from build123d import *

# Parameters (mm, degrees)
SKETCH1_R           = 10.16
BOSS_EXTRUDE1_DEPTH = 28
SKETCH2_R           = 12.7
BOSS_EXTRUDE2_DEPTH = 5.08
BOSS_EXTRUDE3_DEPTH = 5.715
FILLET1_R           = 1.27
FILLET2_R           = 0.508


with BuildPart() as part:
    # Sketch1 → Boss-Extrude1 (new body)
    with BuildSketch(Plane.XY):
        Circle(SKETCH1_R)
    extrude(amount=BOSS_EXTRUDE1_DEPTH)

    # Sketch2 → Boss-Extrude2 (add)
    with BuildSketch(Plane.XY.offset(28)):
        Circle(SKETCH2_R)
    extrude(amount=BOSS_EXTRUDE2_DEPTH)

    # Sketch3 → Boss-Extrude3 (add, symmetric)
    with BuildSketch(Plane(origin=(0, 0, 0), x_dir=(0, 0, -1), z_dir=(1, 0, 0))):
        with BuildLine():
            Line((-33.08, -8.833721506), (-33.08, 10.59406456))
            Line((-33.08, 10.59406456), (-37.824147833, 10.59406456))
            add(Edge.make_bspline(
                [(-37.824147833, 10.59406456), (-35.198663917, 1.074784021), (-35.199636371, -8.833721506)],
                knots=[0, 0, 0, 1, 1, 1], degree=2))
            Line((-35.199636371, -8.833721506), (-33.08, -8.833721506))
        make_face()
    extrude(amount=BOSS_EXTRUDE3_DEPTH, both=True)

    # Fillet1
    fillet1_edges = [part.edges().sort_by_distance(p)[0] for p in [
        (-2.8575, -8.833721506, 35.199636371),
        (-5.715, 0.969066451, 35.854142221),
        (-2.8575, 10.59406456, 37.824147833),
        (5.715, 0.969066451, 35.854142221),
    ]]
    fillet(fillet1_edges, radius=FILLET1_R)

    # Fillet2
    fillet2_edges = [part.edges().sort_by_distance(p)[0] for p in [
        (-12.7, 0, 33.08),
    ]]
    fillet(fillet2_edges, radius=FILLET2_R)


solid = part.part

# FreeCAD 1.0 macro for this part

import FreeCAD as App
import Part
import Sketcher
Q = App.Units.Quantity


def edges_at(feature, points):
    """Names of the edges that pass closest to the given points."""
    edges = feature.Shape.Edges
    near = lambda p: min(range(len(edges)), key=lambda i: edges[i].distToShape(Part.Vertex(*p))[0])
    return sorted({f"Edge{near(p) + 1}" for p in points})

doc = App.newDocument("Part")
body = doc.addObject("PartDesign::Body", "Body")

sketch1 = body.newObject("Sketcher::SketchObject", "Sketch")
sketch1.AttachmentSupport = (doc.getObject("XY_Plane"), [""])
sketch1.MapMode = "FlatFace"
sketch1.addGeometry(Part.Circle(App.Vector(0, 0, 0), App.Vector(0, 0, 1), 10), False)
sketch1.addConstraint(Sketcher.Constraint("Coincident", 0, 3, -1, 1))
sketch1.addConstraint(Sketcher.Constraint("Diameter", 0, Q("0.8 in")))
pad1 = body.newObject("PartDesign::Pad", "Pad")
pad1.Profile = sketch1
pad1.Length = 28

sketch2 = body.newObject("Sketcher::SketchObject", "Sketch001")
sketch2.AttachmentSupport = (doc.getObject("XY_Plane"), [""])
sketch2.MapMode = "FlatFace"
sketch2.AttachmentOffset = App.Placement(App.Vector(0, 0, 28), App.Rotation())
sketch2.addGeometry(Part.Circle(App.Vector(0, 0, 0), App.Vector(0, 0, 1), 13), False)
sketch2.addConstraint(Sketcher.Constraint("Coincident", 0, 3, -1, 1))
sketch2.addConstraint(Sketcher.Constraint("Diameter", 0, Q("1 in")))
pad2 = body.newObject("PartDesign::Pad", "Pad001")
pad2.Profile = sketch2
pad2.Length = Q("0.2 in")

sketch3 = body.newObject("Sketcher::SketchObject", "Sketch002")
sketch3.AttachmentSupport = (doc.getObject("YZ_Plane"), [""])
sketch3.MapMode = "FlatFace"
sketch3.addGeometry(Part.LineSegment(App.Vector(-8.833722, 33.08, 0), App.Vector(10.594065, 33.08, 0)), False)
sketch3.addGeometry(Part.LineSegment(App.Vector(10.594065, 33.08, 0), App.Vector(10.594065, 37.824148, 0)), False)
sketch3.addGeometry(Part.BSplineCurve([App.Vector(10.594065, 37.824148, 0), App.Vector(1.074784, 35.198664, 0), App.Vector(-8.833722, 35.199636, 0)], [3, 3], [0, 1], False, 2, [1, 1, 1], False), False)
sketch3.addGeometry(Part.LineSegment(App.Vector(-8.833722, 35.199636, 0), App.Vector(-8.833722, 33.08, 0)), False)
sketch3.addConstraint(Sketcher.Constraint("Block", 2))
sketch3.addConstraint(Sketcher.Constraint("Coincident", 0, 2, 1, 1))
sketch3.addConstraint(Sketcher.Constraint("Coincident", 1, 2, 2, 1))
sketch3.addConstraint(Sketcher.Constraint("Coincident", 2, 2, 3, 1))
sketch3.addConstraint(Sketcher.Constraint("Coincident", 3, 2, 0, 1))
sketch3.addConstraint(Sketcher.Constraint("Horizontal", 0))
sketch3.addConstraint(Sketcher.Constraint("Vertical", 1))
sketch3.addConstraint(Sketcher.Constraint("Vertical", 3))
sketch3.addConstraint(Sketcher.Constraint("DistanceY", -1, 1, 0, 2, Q("33.08 mm")))
pad3 = body.newObject("PartDesign::Pad", "Pad002")
pad3.Profile = sketch3
pad3.Length = Q("0.45 in")
pad3.Midplane = True
doc.recompute()

fillet = body.newObject("PartDesign::Fillet", "Fillet")
fillet.Base = (pad3, edges_at(pad3, [
    (-2.857, -8.834, 35.2),
    (-5.715, 0.969, 35.854),
    (-2.857, 10.594, 37.824),
    (5.715, 0.969, 35.854),
]))
fillet.Radius = Q("0.05 in")
doc.recompute()

fillet2 = body.newObject("PartDesign::Fillet", "Fillet001")
fillet2.Base = (fillet, edges_at(fillet, [(-12.7, 0, 33.08)]))
fillet2.Radius = Q("0.02 in")

doc.recompute()
